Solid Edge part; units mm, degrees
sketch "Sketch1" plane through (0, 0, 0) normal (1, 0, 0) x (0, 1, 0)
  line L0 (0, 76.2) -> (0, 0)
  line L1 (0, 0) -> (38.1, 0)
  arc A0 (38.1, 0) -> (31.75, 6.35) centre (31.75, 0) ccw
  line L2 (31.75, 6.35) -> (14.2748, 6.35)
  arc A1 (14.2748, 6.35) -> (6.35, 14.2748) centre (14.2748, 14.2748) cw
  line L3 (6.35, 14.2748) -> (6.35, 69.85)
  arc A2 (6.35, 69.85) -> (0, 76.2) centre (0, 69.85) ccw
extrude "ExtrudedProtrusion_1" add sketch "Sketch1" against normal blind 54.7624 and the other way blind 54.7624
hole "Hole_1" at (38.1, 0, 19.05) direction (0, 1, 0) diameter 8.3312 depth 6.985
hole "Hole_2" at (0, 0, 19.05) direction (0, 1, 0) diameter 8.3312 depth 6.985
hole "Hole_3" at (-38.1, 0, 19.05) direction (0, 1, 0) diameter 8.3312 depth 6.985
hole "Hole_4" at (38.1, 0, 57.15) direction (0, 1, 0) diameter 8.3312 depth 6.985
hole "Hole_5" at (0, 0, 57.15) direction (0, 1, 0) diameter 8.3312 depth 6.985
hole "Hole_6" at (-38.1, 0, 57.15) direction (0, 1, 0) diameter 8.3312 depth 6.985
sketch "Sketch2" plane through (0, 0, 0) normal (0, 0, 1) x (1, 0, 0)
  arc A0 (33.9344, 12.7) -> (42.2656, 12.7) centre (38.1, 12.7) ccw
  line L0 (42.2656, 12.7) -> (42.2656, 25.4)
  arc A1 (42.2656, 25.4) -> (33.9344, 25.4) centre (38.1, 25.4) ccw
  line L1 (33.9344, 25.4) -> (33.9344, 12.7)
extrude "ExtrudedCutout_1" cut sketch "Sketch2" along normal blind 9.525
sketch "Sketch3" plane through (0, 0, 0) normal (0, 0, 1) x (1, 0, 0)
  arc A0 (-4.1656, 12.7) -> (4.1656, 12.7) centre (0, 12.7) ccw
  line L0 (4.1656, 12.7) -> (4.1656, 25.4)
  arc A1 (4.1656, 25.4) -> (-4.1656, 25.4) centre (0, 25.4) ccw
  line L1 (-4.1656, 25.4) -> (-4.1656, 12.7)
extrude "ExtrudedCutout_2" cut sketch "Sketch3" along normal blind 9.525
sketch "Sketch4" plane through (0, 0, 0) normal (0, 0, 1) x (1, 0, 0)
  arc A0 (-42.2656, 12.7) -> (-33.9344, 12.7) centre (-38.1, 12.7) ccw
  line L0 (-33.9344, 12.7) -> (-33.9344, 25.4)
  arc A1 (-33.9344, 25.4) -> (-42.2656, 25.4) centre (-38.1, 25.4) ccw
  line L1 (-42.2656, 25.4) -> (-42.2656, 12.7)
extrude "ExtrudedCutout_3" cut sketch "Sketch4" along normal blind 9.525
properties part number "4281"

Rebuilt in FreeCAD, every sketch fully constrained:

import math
import FreeCAD as App
import Part
import Sketcher
Q = App.Units.Quantity

doc = App.newDocument("Part")
body = doc.addObject("PartDesign::Body", "Body")

# Sketch on YZ plane
sketch1 = body.newObject("Sketcher::SketchObject", "Sketch")
sketch1.AttachmentSupport = (doc.getObject("YZ_Plane"), [""])
sketch1.MapMode = "FlatFace"
sketch1.addGeometry(Part.ArcOfCircle(Part.Circle(App.Vector(0, 69.85, 0), App.Vector(0, 0, 1), 6.35), math.radians(0), math.radians(90)), False)
sketch1.addGeometry(Part.LineSegment(App.Vector(0, 76.2, 0), App.Vector(0, 0, 0)), False)
sketch1.addGeometry(Part.LineSegment(App.Vector(0, 0, 0), App.Vector(38.1, 0, 0)), False)
sketch1.addGeometry(Part.ArcOfCircle(Part.Circle(App.Vector(31.75, 0, 0), App.Vector(0, 0, 1), 6.35), math.radians(0), math.radians(90)), False)
sketch1.addGeometry(Part.LineSegment(App.Vector(31.75, 6.35, 0), App.Vector(14.2748, 6.35, 0)), False)
sketch1.addGeometry(Part.ArcOfCircle(Part.Circle(App.Vector(14.2748, 14.2748, 0), App.Vector(0, 0, 1), 7.9248), math.radians(180), math.radians(270)), False)
sketch1.addGeometry(Part.LineSegment(App.Vector(6.35, 14.2748, 0), App.Vector(6.35, 69.85, 0)), False)
sketch1.addConstraint(Sketcher.Constraint("Coincident", 0, 2, 1, 1))
sketch1.addConstraint(Sketcher.Constraint("Coincident", 1, 2, 2, 1))
sketch1.addConstraint(Sketcher.Constraint("Coincident", 2, 2, 3, 1))
sketch1.addConstraint(Sketcher.Constraint("Tangent", 3, 2, 4, 1))
sketch1.addConstraint(Sketcher.Constraint("Tangent", 4, 2, 5, 2))
sketch1.addConstraint(Sketcher.Constraint("Tangent", 5, 1, 6, 1))
sketch1.addConstraint(Sketcher.Constraint("Tangent", 6, 2, 0, 1))
sketch1.addConstraint(Sketcher.Constraint("Vertical", 1))
sketch1.addConstraint(Sketcher.Constraint("Horizontal", 2))
sketch1.addConstraint(Sketcher.Constraint("Horizontal", 4))
sketch1.addConstraint(Sketcher.Constraint("Vertical", 6))
sketch1.addConstraint(Sketcher.Constraint("Coincident", 1, 2, -1, 1))
sketch1.addConstraint(Sketcher.Constraint("Equal", 0, 3))
sketch1.addConstraint(Sketcher.Constraint("PointOnObject", 0, 3, -2))
sketch1.addConstraint(Sketcher.Constraint("PointOnObject", 3, 3, -1))
sketch1.addConstraint(Sketcher.Constraint("DistanceY", 1, 2, 1, 1, Q("3 in")))
sketch1.addConstraint(Sketcher.Constraint("Radius", 0, Q("0.25 in")))
sketch1.addConstraint(Sketcher.Constraint("DistanceX", 2, 1, 2, 2, Q("1.5 in")))
sketch1.addConstraint(Sketcher.Constraint("Radius", 5, Q("0.312 in")))
pad1 = body.newObject("PartDesign::Pad", "Pad")
pad1.Profile = sketch1
pad1.Type = "TwoLengths"
pad1.Length = Q("2.156 in")
pad1.Length2 = Q("2.156 in")
pad1.Reversed = True

# Sketch on XZ plane
sketch2 = body.newObject("Sketcher::SketchObject", "Sketch001")
sketch2.AttachmentSupport = (doc.getObject("XZ_Plane"), [""])
sketch2.MapMode = "FlatFace"
sketch2.addGeometry(Part.Circle(App.Vector(38.1, 19.05, 0), App.Vector(0, 0, 1), 4.1656), False)
sketch2.addConstraint(Sketcher.Constraint("Diameter", 0, Q("0.328 in")))
sketch2.addConstraint(Sketcher.Constraint("DistanceX", -1, 1, 0, 3, Q("1.5 in")))
sketch2.addConstraint(Sketcher.Constraint("DistanceY", -1, 1, 0, 3, Q("0.75 in")))
doc.recompute()
hole = body.newObject("PartDesign::Hole", "Hole")
hole.Profile = sketch2
hole.ThreadType = "None"
hole.Diameter = Q("0.328 in")
hole.DepthType = "Dimension"
hole.Depth = Q("0.275 in")
hole.DrillPoint = "Flat"

# Sketch on XZ plane
sketch3 = body.newObject("Sketcher::SketchObject", "Sketch002")
sketch3.AttachmentSupport = (doc.getObject("XZ_Plane"), [""])
sketch3.MapMode = "FlatFace"
sketch3.addGeometry(Part.Circle(App.Vector(0, 19.05, 0), App.Vector(0, 0, 1), 4.1656), False)
sketch3.addConstraint(Sketcher.Constraint("PointOnObject", 0, 3, -2))
sketch3.addConstraint(Sketcher.Constraint("Diameter", 0, Q("0.328 in")))
sketch3.addConstraint(Sketcher.Constraint("DistanceY", -1, 1, 0, 3, Q("0.75 in")))
doc.recompute()
hole2 = body.newObject("PartDesign::Hole", "Hole001")
hole2.Profile = sketch3
hole2.ThreadType = "None"
hole2.Diameter = Q("0.328 in")
hole2.DepthType = "Dimension"
hole2.Depth = Q("0.275 in")
hole2.DrillPoint = "Flat"

# Sketch on XZ plane
sketch4 = body.newObject("Sketcher::SketchObject", "Sketch003")
sketch4.AttachmentSupport = (doc.getObject("XZ_Plane"), [""])
sketch4.MapMode = "FlatFace"
sketch4.addGeometry(Part.Circle(App.Vector(-38.1, 19.05, 0), App.Vector(0, 0, 1), 4.1656), False)
sketch4.addConstraint(Sketcher.Constraint("Diameter", 0, Q("0.328 in")))
sketch4.addConstraint(Sketcher.Constraint("DistanceX", 0, 3, -1, 1, Q("1.5 in")))
sketch4.addConstraint(Sketcher.Constraint("DistanceY", -1, 1, 0, 3, Q("0.75 in")))
doc.recompute()
hole3 = body.newObject("PartDesign::Hole", "Hole002")
hole3.Profile = sketch4
hole3.ThreadType = "None"
hole3.Diameter = Q("0.328 in")
hole3.DepthType = "Dimension"
hole3.Depth = Q("0.275 in")
hole3.DrillPoint = "Flat"

# Sketch on XZ plane
sketch5 = body.newObject("Sketcher::SketchObject", "Sketch004")
sketch5.AttachmentSupport = (doc.getObject("XZ_Plane"), [""])
sketch5.MapMode = "FlatFace"
sketch5.addGeometry(Part.Circle(App.Vector(38.1, 57.15, 0), App.Vector(0, 0, 1), 4.1656), False)
sketch5.addConstraint(Sketcher.Constraint("Diameter", 0, Q("0.328 in")))
sketch5.addConstraint(Sketcher.Constraint("DistanceX", -1, 1, 0, 3, Q("1.5 in")))
sketch5.addConstraint(Sketcher.Constraint("DistanceY", -1, 1, 0, 3, Q("2.25 in")))
doc.recompute()
hole4 = body.newObject("PartDesign::Hole", "Hole003")
hole4.Profile = sketch5
hole4.ThreadType = "None"
hole4.Diameter = Q("0.328 in")
hole4.DepthType = "Dimension"
hole4.Depth = Q("0.275 in")
hole4.DrillPoint = "Flat"

# Sketch on XZ plane
sketch6 = body.newObject("Sketcher::SketchObject", "Sketch005")
sketch6.AttachmentSupport = (doc.getObject("XZ_Plane"), [""])
sketch6.MapMode = "FlatFace"
sketch6.addGeometry(Part.Circle(App.Vector(0, 57.15, 0), App.Vector(0, 0, 1), 4.1656), False)
sketch6.addConstraint(Sketcher.Constraint("PointOnObject", 0, 3, -2))
sketch6.addConstraint(Sketcher.Constraint("Diameter", 0, Q("0.328 in")))
sketch6.addConstraint(Sketcher.Constraint("DistanceY", -1, 1, 0, 3, Q("2.25 in")))
doc.recompute()
hole5 = body.newObject("PartDesign::Hole", "Hole004")
hole5.Profile = sketch6
hole5.ThreadType = "None"
hole5.Diameter = Q("0.328 in")
hole5.DepthType = "Dimension"
hole5.Depth = Q("0.275 in")
hole5.DrillPoint = "Flat"

# Sketch on XZ plane
sketch7 = body.newObject("Sketcher::SketchObject", "Sketch006")
sketch7.AttachmentSupport = (doc.getObject("XZ_Plane"), [""])
sketch7.MapMode = "FlatFace"
sketch7.addGeometry(Part.Circle(App.Vector(-38.1, 57.15, 0), App.Vector(0, 0, 1), 4.1656), False)
sketch7.addConstraint(Sketcher.Constraint("Diameter", 0, Q("0.328 in")))
sketch7.addConstraint(Sketcher.Constraint("DistanceX", 0, 3, -1, 1, Q("1.5 in")))
sketch7.addConstraint(Sketcher.Constraint("DistanceY", -1, 1, 0, 3, Q("2.25 in")))
doc.recompute()
hole6 = body.newObject("PartDesign::Hole", "Hole005")
hole6.Profile = sketch7
hole6.ThreadType = "None"
hole6.Diameter = Q("0.328 in")
hole6.DepthType = "Dimension"
hole6.Depth = Q("0.275 in")
hole6.DrillPoint = "Flat"

# Sketch on XY plane
sketch8 = body.newObject("Sketcher::SketchObject", "Sketch007")
sketch8.AttachmentSupport = (doc.getObject("XY_Plane"), [""])
sketch8.MapMode = "FlatFace"
sketch8.addGeometry(Part.LineSegment(App.Vector(33.9344, 25.4, 0), App.Vector(33.9344, 12.7, 0)), False)
sketch8.addGeometry(Part.ArcOfCircle(Part.Circle(App.Vector(38.1, 12.7, 0), App.Vector(0, 0, 1), 4.1656), math.radians(180), math.radians(360)), False)
sketch8.addGeometry(Part.LineSegment(App.Vector(42.2656, 12.7, 0), App.Vector(42.2656, 25.4, 0)), False)
sketch8.addGeometry(Part.ArcOfCircle(Part.Circle(App.Vector(38.1, 25.4, 0), App.Vector(0, 0, 1), 4.1656), math.radians(0), math.radians(180)), False)
sketch8.addConstraint(Sketcher.Constraint("Tangent", 0, 2, 1, 1))
sketch8.addConstraint(Sketcher.Constraint("Tangent", 1, 2, 2, 1))
sketch8.addConstraint(Sketcher.Constraint("Tangent", 2, 2, 3, 1))
sketch8.addConstraint(Sketcher.Constraint("Tangent", 3, 2, 0, 1))
sketch8.addConstraint(Sketcher.Constraint("Vertical", 0))
sketch8.addConstraint(Sketcher.Constraint("Vertical", 2))
sketch8.addConstraint(Sketcher.Constraint("DistanceY", 0, 2, 0, 1, Q("0.5 in")))
sketch8.addConstraint(Sketcher.Constraint("DistanceY", -1, 1, 3, 3, Q("1 in")))
sketch8.addConstraint(Sketcher.Constraint("Radius", 1, Q("0.164 in")))
sketch8.addConstraint(Sketcher.Constraint("DistanceX", -1, 1, 1, 3, Q("1.5 in")))
pocket1 = body.newObject("PartDesign::Pocket", "Pocket")
pocket1.Profile = sketch8
pocket1.Length = Q("0.375 in")
pocket1.Reversed = True

# Sketch on XY plane
sketch9 = body.newObject("Sketcher::SketchObject", "Sketch008")
sketch9.AttachmentSupport = (doc.getObject("XY_Plane"), [""])
sketch9.MapMode = "FlatFace"
sketch9.addGeometry(Part.LineSegment(App.Vector(-4.1656, 25.4, 0), App.Vector(-4.1656, 12.7, 0)), False)
sketch9.addGeometry(Part.ArcOfCircle(Part.Circle(App.Vector(0, 12.7, 0), App.Vector(0, 0, 1), 4.1656), math.radians(180), math.radians(360)), False)
sketch9.addGeometry(Part.LineSegment(App.Vector(4.1656, 12.7, 0), App.Vector(4.1656, 25.4, 0)), False)
sketch9.addGeometry(Part.ArcOfCircle(Part.Circle(App.Vector(0, 25.4, 0), App.Vector(0, 0, 1), 4.1656), math.radians(0), math.radians(180)), False)
sketch9.addConstraint(Sketcher.Constraint("Tangent", 0, 2, 1, 1))
sketch9.addConstraint(Sketcher.Constraint("Tangent", 1, 2, 2, 1))
sketch9.addConstraint(Sketcher.Constraint("Tangent", 2, 2, 3, 1))
sketch9.addConstraint(Sketcher.Constraint("Tangent", 3, 2, 0, 1))
sketch9.addConstraint(Sketcher.Constraint("Vertical", 0))
sketch9.addConstraint(Sketcher.Constraint("Vertical", 2))
sketch9.addConstraint(Sketcher.Constraint("PointOnObject", 1, 3, -2))
sketch9.addConstraint(Sketcher.Constraint("DistanceY", 0, 2, 0, 1, Q("0.5 in")))
sketch9.addConstraint(Sketcher.Constraint("DistanceY", -1, 1, 3, 3, Q("1 in")))
sketch9.addConstraint(Sketcher.Constraint("Radius", 1, Q("0.164 in")))
pocket2 = body.newObject("PartDesign::Pocket", "Pocket001")
pocket2.Profile = sketch9
pocket2.Length = Q("0.375 in")
pocket2.Reversed = True

# Sketch on XY plane
sketch10 = body.newObject("Sketcher::SketchObject", "Sketch009")
sketch10.AttachmentSupport = (doc.getObject("XY_Plane"), [""])
sketch10.MapMode = "FlatFace"
sketch10.addGeometry(Part.LineSegment(App.Vector(-42.2656, 25.4, 0), App.Vector(-42.2656, 12.7, 0)), False)
sketch10.addGeometry(Part.ArcOfCircle(Part.Circle(App.Vector(-38.1, 12.7, 0), App.Vector(0, 0, 1), 4.1656), math.radians(180), math.radians(360)), False)
sketch10.addGeometry(Part.LineSegment(App.Vector(-33.9344, 12.7, 0), App.Vector(-33.9344, 25.4, 0)), False)
sketch10.addGeometry(Part.ArcOfCircle(Part.Circle(App.Vector(-38.1, 25.4, 0), App.Vector(0, 0, 1), 4.1656), math.radians(0), math.radians(180)), False)
sketch10.addConstraint(Sketcher.Constraint("Tangent", 0, 2, 1, 1))
sketch10.addConstraint(Sketcher.Constraint("Tangent", 1, 2, 2, 1))
sketch10.addConstraint(Sketcher.Constraint("Tangent", 2, 2, 3, 1))
sketch10.addConstraint(Sketcher.Constraint("Tangent", 3, 2, 0, 1))
sketch10.addConstraint(Sketcher.Constraint("Vertical", 0))
sketch10.addConstraint(Sketcher.Constraint("Vertical", 2))
sketch10.addConstraint(Sketcher.Constraint("DistanceY", 0, 2, 0, 1, Q("0.5 in")))
sketch10.addConstraint(Sketcher.Constraint("DistanceY", -1, 1, 3, 3, Q("1 in")))
sketch10.addConstraint(Sketcher.Constraint("Radius", 1, Q("0.164 in")))
sketch10.addConstraint(Sketcher.Constraint("DistanceX", 1, 3, -1, 1, Q("1.5 in")))
pocket3 = body.newObject("PartDesign::Pocket", "Pocket002")
pocket3.Profile = sketch10
pocket3.Length = Q("0.375 in")
pocket3.Reversed = True

doc.recompute()
